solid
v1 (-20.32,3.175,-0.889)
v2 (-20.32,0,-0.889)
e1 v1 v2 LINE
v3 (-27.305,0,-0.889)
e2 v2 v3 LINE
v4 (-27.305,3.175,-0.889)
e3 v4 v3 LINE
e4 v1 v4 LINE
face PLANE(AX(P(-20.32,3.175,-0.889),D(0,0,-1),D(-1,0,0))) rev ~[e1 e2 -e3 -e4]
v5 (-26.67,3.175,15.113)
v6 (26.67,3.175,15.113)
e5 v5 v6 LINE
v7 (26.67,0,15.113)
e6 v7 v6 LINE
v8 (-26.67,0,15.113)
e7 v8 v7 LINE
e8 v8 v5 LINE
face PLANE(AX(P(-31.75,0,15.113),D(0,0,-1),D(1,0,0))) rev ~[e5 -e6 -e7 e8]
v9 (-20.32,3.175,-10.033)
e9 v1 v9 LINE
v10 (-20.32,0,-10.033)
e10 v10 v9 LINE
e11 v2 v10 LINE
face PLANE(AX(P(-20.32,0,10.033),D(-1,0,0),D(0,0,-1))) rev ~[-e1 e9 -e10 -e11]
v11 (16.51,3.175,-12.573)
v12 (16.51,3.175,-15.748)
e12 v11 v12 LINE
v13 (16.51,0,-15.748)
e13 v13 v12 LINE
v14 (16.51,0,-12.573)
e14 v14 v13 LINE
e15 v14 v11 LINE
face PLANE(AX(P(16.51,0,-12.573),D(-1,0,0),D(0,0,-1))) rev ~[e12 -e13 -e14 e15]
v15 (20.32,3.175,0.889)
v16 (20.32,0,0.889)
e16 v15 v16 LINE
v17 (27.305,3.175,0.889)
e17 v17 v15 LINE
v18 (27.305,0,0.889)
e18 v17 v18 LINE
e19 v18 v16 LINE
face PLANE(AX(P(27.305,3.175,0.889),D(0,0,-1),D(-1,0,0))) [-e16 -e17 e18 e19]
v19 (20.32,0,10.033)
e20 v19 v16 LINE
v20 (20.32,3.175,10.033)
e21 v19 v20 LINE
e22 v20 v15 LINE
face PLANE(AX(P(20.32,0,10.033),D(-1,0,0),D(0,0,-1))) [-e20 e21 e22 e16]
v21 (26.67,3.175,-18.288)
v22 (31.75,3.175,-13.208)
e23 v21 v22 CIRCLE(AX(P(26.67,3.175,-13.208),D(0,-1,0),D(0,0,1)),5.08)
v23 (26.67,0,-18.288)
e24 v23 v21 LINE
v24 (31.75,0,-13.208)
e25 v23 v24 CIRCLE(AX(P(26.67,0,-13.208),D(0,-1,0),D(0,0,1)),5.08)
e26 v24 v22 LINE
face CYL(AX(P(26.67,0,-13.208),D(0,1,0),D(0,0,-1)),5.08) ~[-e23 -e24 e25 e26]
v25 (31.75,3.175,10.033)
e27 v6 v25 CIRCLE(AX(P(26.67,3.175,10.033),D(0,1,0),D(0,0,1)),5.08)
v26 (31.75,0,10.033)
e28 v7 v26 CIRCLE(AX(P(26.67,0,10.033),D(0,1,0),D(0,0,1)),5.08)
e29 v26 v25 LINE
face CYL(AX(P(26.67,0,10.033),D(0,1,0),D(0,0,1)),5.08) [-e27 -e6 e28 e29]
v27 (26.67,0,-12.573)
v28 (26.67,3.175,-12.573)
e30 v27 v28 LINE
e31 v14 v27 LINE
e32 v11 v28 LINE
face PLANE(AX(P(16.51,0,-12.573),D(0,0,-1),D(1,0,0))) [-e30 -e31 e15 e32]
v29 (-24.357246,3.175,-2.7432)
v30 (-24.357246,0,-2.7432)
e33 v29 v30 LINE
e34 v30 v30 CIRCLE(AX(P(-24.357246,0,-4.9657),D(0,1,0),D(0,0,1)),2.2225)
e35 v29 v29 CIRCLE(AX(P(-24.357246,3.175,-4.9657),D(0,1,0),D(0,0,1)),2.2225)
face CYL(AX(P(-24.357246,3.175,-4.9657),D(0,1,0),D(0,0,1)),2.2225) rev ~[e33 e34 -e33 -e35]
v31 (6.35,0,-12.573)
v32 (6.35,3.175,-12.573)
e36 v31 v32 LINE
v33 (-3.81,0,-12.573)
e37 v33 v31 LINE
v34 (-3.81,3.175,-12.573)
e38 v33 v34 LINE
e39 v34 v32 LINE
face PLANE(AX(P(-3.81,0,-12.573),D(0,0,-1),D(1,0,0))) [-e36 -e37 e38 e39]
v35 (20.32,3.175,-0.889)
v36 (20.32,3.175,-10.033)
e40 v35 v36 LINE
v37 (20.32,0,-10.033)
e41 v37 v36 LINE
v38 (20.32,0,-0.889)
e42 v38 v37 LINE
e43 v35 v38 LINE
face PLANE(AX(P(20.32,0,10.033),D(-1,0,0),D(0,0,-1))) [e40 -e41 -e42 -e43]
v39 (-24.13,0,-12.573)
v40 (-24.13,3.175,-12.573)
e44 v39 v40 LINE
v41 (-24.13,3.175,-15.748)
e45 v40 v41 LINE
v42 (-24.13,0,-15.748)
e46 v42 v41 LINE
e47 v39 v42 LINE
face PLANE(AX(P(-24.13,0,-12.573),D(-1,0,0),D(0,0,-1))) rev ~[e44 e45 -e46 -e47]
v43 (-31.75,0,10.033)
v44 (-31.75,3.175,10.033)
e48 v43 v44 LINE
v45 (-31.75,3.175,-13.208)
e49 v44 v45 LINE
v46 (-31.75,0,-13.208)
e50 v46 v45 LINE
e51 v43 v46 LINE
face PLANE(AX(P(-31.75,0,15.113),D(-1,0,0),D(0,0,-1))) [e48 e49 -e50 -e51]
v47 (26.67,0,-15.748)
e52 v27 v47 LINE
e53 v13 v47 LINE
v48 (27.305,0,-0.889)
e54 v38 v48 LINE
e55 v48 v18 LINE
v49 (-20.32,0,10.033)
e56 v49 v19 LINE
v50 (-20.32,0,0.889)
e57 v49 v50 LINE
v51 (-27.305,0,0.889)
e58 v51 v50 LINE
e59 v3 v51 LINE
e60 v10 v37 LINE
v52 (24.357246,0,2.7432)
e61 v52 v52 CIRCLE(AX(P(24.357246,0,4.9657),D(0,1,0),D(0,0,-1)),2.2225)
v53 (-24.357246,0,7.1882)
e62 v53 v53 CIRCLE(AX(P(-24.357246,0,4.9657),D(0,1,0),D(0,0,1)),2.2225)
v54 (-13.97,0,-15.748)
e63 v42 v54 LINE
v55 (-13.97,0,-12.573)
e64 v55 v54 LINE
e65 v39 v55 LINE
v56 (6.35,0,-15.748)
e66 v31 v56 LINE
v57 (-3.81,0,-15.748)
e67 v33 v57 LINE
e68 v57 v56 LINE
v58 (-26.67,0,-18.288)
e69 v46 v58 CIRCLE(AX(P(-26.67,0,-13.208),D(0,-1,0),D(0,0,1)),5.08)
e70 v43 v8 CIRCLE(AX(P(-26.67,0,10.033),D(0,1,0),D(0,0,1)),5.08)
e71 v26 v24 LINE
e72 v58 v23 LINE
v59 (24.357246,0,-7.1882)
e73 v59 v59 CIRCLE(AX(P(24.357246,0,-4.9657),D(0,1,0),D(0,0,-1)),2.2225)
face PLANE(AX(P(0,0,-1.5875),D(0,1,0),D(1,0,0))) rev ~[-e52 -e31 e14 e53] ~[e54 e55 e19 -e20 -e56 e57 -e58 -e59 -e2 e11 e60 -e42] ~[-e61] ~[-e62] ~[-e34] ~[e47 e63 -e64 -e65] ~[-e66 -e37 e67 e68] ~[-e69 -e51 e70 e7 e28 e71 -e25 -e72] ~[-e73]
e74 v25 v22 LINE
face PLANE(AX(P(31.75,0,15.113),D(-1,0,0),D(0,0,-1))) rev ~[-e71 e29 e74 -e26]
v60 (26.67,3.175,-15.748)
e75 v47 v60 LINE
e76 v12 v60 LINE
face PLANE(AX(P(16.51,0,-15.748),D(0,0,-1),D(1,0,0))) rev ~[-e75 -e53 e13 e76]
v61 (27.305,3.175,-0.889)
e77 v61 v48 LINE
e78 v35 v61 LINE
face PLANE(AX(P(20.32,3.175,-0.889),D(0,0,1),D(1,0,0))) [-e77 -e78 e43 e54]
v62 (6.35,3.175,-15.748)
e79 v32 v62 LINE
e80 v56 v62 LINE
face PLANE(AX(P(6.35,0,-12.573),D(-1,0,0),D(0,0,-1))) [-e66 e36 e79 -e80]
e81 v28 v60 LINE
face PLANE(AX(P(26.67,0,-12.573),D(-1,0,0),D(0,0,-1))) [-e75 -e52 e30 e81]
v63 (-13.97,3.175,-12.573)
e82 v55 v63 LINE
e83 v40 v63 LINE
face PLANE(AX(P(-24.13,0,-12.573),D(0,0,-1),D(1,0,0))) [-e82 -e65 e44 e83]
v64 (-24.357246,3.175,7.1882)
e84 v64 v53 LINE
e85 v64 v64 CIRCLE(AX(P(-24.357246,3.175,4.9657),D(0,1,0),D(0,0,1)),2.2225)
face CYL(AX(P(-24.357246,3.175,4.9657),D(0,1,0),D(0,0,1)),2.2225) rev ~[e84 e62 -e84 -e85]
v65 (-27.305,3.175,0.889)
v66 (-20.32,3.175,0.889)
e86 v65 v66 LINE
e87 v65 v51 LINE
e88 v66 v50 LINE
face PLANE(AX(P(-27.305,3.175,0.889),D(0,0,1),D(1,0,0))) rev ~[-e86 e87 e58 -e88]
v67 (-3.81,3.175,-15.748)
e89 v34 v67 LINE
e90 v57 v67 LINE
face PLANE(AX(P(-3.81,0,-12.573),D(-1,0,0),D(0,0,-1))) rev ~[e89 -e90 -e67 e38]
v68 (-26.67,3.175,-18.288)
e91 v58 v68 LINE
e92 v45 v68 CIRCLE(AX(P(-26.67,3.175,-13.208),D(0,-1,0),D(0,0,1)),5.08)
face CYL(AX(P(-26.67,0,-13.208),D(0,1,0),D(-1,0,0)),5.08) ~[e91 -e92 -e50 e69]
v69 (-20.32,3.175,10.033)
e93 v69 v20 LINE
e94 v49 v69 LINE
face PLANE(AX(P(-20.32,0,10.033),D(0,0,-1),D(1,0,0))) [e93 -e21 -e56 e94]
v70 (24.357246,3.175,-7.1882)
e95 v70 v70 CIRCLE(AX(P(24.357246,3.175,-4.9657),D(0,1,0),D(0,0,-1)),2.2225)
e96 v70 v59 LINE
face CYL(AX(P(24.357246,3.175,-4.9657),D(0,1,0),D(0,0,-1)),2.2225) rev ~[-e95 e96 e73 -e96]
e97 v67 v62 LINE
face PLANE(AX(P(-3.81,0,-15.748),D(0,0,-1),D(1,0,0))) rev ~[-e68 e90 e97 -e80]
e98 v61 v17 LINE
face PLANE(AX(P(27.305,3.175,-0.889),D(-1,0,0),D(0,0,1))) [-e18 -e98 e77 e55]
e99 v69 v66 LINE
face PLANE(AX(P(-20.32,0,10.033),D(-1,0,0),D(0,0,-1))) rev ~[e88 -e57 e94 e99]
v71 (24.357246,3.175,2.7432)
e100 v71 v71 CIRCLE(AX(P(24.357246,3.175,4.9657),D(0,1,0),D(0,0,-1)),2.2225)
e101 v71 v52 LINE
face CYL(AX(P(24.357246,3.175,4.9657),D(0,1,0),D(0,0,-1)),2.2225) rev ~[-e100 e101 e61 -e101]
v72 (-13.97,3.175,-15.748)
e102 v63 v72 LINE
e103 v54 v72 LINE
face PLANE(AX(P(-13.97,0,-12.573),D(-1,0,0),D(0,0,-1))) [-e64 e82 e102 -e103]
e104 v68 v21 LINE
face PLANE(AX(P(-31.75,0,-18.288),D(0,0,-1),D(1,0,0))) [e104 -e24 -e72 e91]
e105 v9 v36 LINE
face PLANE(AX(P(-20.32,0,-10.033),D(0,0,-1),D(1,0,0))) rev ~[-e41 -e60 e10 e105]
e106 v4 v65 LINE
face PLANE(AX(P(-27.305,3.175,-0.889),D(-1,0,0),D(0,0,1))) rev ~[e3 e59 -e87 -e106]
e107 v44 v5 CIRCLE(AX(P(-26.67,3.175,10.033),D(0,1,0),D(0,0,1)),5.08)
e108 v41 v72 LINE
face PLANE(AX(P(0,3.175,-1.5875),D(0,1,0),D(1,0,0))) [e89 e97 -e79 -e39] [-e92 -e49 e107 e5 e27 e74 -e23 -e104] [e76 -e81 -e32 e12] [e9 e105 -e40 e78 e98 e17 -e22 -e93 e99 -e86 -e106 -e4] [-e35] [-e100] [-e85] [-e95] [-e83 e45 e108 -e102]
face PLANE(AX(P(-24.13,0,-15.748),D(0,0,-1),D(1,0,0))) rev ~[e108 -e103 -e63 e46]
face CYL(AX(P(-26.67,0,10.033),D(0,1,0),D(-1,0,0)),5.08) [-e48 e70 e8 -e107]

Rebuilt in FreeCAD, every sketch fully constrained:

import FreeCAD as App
import Part
import Sketcher
from FreeCAD import Vector
Q = App.Units.Quantity


def edges_at(feature, points):
    """Names of the edges that pass closest to the given points."""
    edges = feature.Shape.Edges
    near = lambda p: min(range(len(edges)), key=lambda i: edges[i].distToShape(Part.Vertex(*p))[0])
    return sorted({f"Edge{near(p) + 1}" for p in points})

doc = App.newDocument("Part")
body = doc.addObject("PartDesign::Body", "Body")

sketch1 = body.newObject("Sketcher::SketchObject", "Sketch")
sketch1.AttachmentSupport = (doc.getObject("XZ_Plane"), [""])
sketch1.MapMode = "FlatFace"
sketch1.addGeometry(Part.LineSegment(Vector(-31.8, -18.3, 0), Vector(-31.8, 15.1, 0)), False)
sketch1.addGeometry(Part.LineSegment(Vector(-31.8, 15.1, 0), Vector(31.8, 15.1, 0)), False)
sketch1.addGeometry(Part.LineSegment(Vector(31.8, 15.1, 0), Vector(31.8, -18.3, 0)), False)
sketch1.addGeometry(Part.LineSegment(Vector(31.8, -18.3, 0), Vector(-31.8, -18.3, 0)), False)
sketch1.addGeometry(Part.LineSegment(Vector(20.3, 10, 0), Vector(-20.3, 10, 0)), False)
sketch1.addGeometry(Part.LineSegment(Vector(-20.3, 10, 0), Vector(-20.3, -10, 0)), False)
sketch1.addGeometry(Part.LineSegment(Vector(-20.3, -10, 0), Vector(20.3, -10, 0)), False)
sketch1.addGeometry(Part.LineSegment(Vector(20.3, -10, 0), Vector(20.3, 10, 0)), False)
sketch1.addGeometry(Part.LineSegment(Vector(-14, -12.6, 0), Vector(-24.1, -12.6, 0)), False)
sketch1.addGeometry(Part.LineSegment(Vector(-24.1, -12.6, 0), Vector(-24.1, -15.7, 0)), False)
sketch1.addGeometry(Part.LineSegment(Vector(-24.1, -15.7, 0), Vector(-14, -15.7, 0)), False)
sketch1.addGeometry(Part.LineSegment(Vector(-14, -15.7, 0), Vector(-14, -12.6, 0)), False)
sketch1.addGeometry(Part.LineSegment(Vector(6.3, -12.6, 0), Vector(-3.8, -12.6, 0)), False)
sketch1.addGeometry(Part.LineSegment(Vector(-3.8, -12.6, 0), Vector(-3.8, -15.7, 0)), False)
sketch1.addGeometry(Part.LineSegment(Vector(-3.8, -15.7, 0), Vector(6.3, -15.7, 0)), False)
sketch1.addGeometry(Part.LineSegment(Vector(6.3, -15.7, 0), Vector(6.3, -12.6, 0)), False)
sketch1.addGeometry(Part.LineSegment(Vector(26.7, -12.6, 0), Vector(16.5, -12.6, 0)), False)
sketch1.addGeometry(Part.LineSegment(Vector(16.5, -12.6, 0), Vector(16.5, -15.7, 0)), False)
sketch1.addGeometry(Part.LineSegment(Vector(16.5, -15.7, 0), Vector(26.7, -15.7, 0)), False)
sketch1.addGeometry(Part.LineSegment(Vector(26.7, -15.7, 0), Vector(26.7, -12.6, 0)), False)
sketch1.addConstraint(Sketcher.Constraint("Coincident", 0, 2, 1, 1))
sketch1.addConstraint(Sketcher.Constraint("Coincident", 1, 2, 2, 1))
sketch1.addConstraint(Sketcher.Constraint("Coincident", 2, 2, 3, 1))
sketch1.addConstraint(Sketcher.Constraint("Coincident", 3, 2, 0, 1))
sketch1.addConstraint(Sketcher.Constraint("Coincident", 4, 2, 5, 1))
sketch1.addConstraint(Sketcher.Constraint("Coincident", 5, 2, 6, 1))
sketch1.addConstraint(Sketcher.Constraint("Coincident", 6, 2, 7, 1))
sketch1.addConstraint(Sketcher.Constraint("Coincident", 7, 2, 4, 1))
sketch1.addConstraint(Sketcher.Constraint("Coincident", 8, 2, 9, 1))
sketch1.addConstraint(Sketcher.Constraint("Coincident", 9, 2, 10, 1))
sketch1.addConstraint(Sketcher.Constraint("Coincident", 10, 2, 11, 1))
sketch1.addConstraint(Sketcher.Constraint("Coincident", 11, 2, 8, 1))
sketch1.addConstraint(Sketcher.Constraint("Coincident", 12, 2, 13, 1))
sketch1.addConstraint(Sketcher.Constraint("Coincident", 13, 2, 14, 1))
sketch1.addConstraint(Sketcher.Constraint("Coincident", 14, 2, 15, 1))
sketch1.addConstraint(Sketcher.Constraint("Coincident", 15, 2, 12, 1))
sketch1.addConstraint(Sketcher.Constraint("Coincident", 16, 2, 17, 1))
sketch1.addConstraint(Sketcher.Constraint("Coincident", 17, 2, 18, 1))
sketch1.addConstraint(Sketcher.Constraint("Coincident", 18, 2, 19, 1))
sketch1.addConstraint(Sketcher.Constraint("Coincident", 19, 2, 16, 1))
sketch1.addConstraint(Sketcher.Constraint("Vertical", 0))
sketch1.addConstraint(Sketcher.Constraint("Horizontal", 1))
sketch1.addConstraint(Sketcher.Constraint("Vertical", 2))
sketch1.addConstraint(Sketcher.Constraint("Horizontal", 3))
sketch1.addConstraint(Sketcher.Constraint("Horizontal", 4))
sketch1.addConstraint(Sketcher.Constraint("Vertical", 5))
sketch1.addConstraint(Sketcher.Constraint("Horizontal", 6))
sketch1.addConstraint(Sketcher.Constraint("Vertical", 7))
sketch1.addConstraint(Sketcher.Constraint("Horizontal", 8))
sketch1.addConstraint(Sketcher.Constraint("Vertical", 9))
sketch1.addConstraint(Sketcher.Constraint("Horizontal", 10))
sketch1.addConstraint(Sketcher.Constraint("Vertical", 11))
sketch1.addConstraint(Sketcher.Constraint("Horizontal", 12))
sketch1.addConstraint(Sketcher.Constraint("Vertical", 13))
sketch1.addConstraint(Sketcher.Constraint("Horizontal", 14))
sketch1.addConstraint(Sketcher.Constraint("Vertical", 15))
sketch1.addConstraint(Sketcher.Constraint("Horizontal", 16))
sketch1.addConstraint(Sketcher.Constraint("Vertical", 17))
sketch1.addConstraint(Sketcher.Constraint("Horizontal", 18))
sketch1.addConstraint(Sketcher.Constraint("Vertical", 19))
sketch1.addConstraint(Sketcher.Constraint("Symmetric", 4, 2, 6, 2, -1, 1))
sketch1.addConstraint(Sketcher.Constraint("Horizontal", 11, 2, 12, 2))
sketch1.addConstraint(Sketcher.Constraint("Horizontal", 10, 2, 13, 2))
sketch1.addConstraint(Sketcher.Constraint("Horizontal", 15, 2, 16, 2))
sketch1.addConstraint(Sketcher.Constraint("Horizontal", 14, 2, 17, 2))
sketch1.addConstraint(Sketcher.Constraint("Equal", 10, 12))
sketch1.addConstraint(Sketcher.Constraint("Equal", 14, 16))
sketch1.addConstraint(Sketcher.Constraint("DistanceX", 1, 1, 1, 2, Q("2.5 in")))
sketch1.addConstraint(Sketcher.Constraint("DistanceX", 4, 2, 4, 1, Q("1.6 in")))
sketch1.addConstraint(Sketcher.Constraint("DistanceX", 8, 2, 8, 1, Q("0.4 in")))
sketch1.addConstraint(Sketcher.Constraint("DistanceY", 5, 2, 5, 1, Q("0.79 in")))
sketch1.addConstraint(Sketcher.Constraint("DistanceY", 4, 2, 0, 2, Q("0.2 in")))
sketch1.addConstraint(Sketcher.Constraint("DistanceY", 8, 2, 5, 2, Q("0.1 in")))
sketch1.addConstraint(Sketcher.Constraint("DistanceX", 3, 2, 8, 2, Q("0.3 in")))
sketch1.addConstraint(Sketcher.Constraint("DistanceY", 3, 2, 9, 2, Q("0.1 in")))
sketch1.addConstraint(Sketcher.Constraint("DistanceX", 11, 2, 12, 2, Q("0.4 in")))
sketch1.addConstraint(Sketcher.Constraint("DistanceX", 15, 2, 16, 2, Q("0.4 in")))
sketch1.addConstraint(Sketcher.Constraint("DistanceY", 0, 1, 0, 2, Q("1.315 in")))
sketch1.addConstraint(Sketcher.Constraint("DistanceX", 0, 2, -1, 1, Q("1.25 in")))
pad1 = body.newObject("PartDesign::Pad", "Pad")
pad1.Profile = sketch1
pad1.Length = Q("0.125 in")
pad1.Reversed = True

sketch2 = body.newObject("Sketcher::SketchObject", "Sketch001")
sketch2.AttachmentSupport = (doc.getObject("XZ_Plane"), [""])
sketch2.MapMode = "FlatFace"
sketch2.AttachmentOffset = App.Placement(Vector(0, 0, -0.125 * 25.4), App.Rotation())
sketch2.addGeometry(Part.Circle(Vector(-24.4, -5, 0), Vector(0, 0, 1), 2.2), False)
sketch2.addGeometry(Part.Circle(Vector(-24.4, 5, 0), Vector(0, 0, 1), 2.2), False)
sketch2.addGeometry(Part.Circle(Vector(24.4, 5, 0), Vector(0, 0, 1), 2.2), False)
sketch2.addGeometry(Part.Circle(Vector(24.4, -5, 0), Vector(0, 0, 1), 2.2), False)
sketch2.addConstraint(Sketcher.Constraint("Equal", 0, 1))
sketch2.addConstraint(Sketcher.Constraint("Equal", 1, 2))
sketch2.addConstraint(Sketcher.Constraint("Equal", 2, 3))
sketch2.addConstraint(Sketcher.Constraint("Symmetric", 0, 3, 2, 3, -1, 1))
sketch2.addConstraint(Sketcher.Constraint("Symmetric", 1, 3, 3, 3, -1, 1))
sketch2.addConstraint(Sketcher.Constraint("Symmetric", 1, 3, 2, 3, -2))
sketch2.addConstraint(Sketcher.Constraint("Diameter", 0, Q("0.175 in")))
sketch2.addConstraint(Sketcher.Constraint("DistanceY", 0, 3, 1, 3, Q("0.391 in")))
sketch2.addConstraint(Sketcher.Constraint("DistanceX", 0, 3, -1, 1, Q("24.357246 mm")))
pocket1 = body.newObject("PartDesign::Pocket", "Pocket")
pocket1.Profile = sketch2
pocket1.Type = "ThroughAll"
pocket1.Reversed = True

sketch3 = body.newObject("Sketcher::SketchObject", "Sketch002")
sketch3.AttachmentSupport = (doc.getObject("XZ_Plane"), [""])
sketch3.MapMode = "FlatFace"
sketch3.AttachmentOffset = App.Placement(Vector(0, 0, -0.125 * 25.4), App.Rotation())
sketch3.addGeometry(Part.LineSegment(Vector(-20.3, -0.9, 0), Vector(-27.3, -0.9, 0)), False)
sketch3.addGeometry(Part.LineSegment(Vector(-27.3, -0.9, 0), Vector(-27.3, 0.9, 0)), False)
sketch3.addGeometry(Part.LineSegment(Vector(-27.3, 0.9, 0), Vector(-20.3, 0.9, 0)), False)
sketch3.addGeometry(Part.LineSegment(Vector(-20.3, 0.9, 0), Vector(-20.3, -0.9, 0)), False)
sketch3.addGeometry(Part.LineSegment(Vector(20.3, 0.9, 0), Vector(27.3, 0.9, 0)), False)
sketch3.addGeometry(Part.LineSegment(Vector(27.3, 0.9, 0), Vector(27.3, -0.9, 0)), False)
sketch3.addGeometry(Part.LineSegment(Vector(27.3, -0.9, 0), Vector(20.3, -0.9, 0)), False)
sketch3.addGeometry(Part.LineSegment(Vector(20.3, -0.9, 0), Vector(20.3, 0.9, 0)), False)
sketch3.addConstraint(Sketcher.Constraint("Coincident", 0, 2, 1, 1))
sketch3.addConstraint(Sketcher.Constraint("Coincident", 1, 2, 2, 1))
sketch3.addConstraint(Sketcher.Constraint("Coincident", 2, 2, 3, 1))
sketch3.addConstraint(Sketcher.Constraint("Coincident", 3, 2, 0, 1))
sketch3.addConstraint(Sketcher.Constraint("Coincident", 4, 2, 5, 1))
sketch3.addConstraint(Sketcher.Constraint("Coincident", 5, 2, 6, 1))
sketch3.addConstraint(Sketcher.Constraint("Coincident", 6, 2, 7, 1))
sketch3.addConstraint(Sketcher.Constraint("Coincident", 7, 2, 4, 1))
sketch3.addConstraint(Sketcher.Constraint("Horizontal", 0))
sketch3.addConstraint(Sketcher.Constraint("Vertical", 1))
sketch3.addConstraint(Sketcher.Constraint("Horizontal", 2))
sketch3.addConstraint(Sketcher.Constraint("Vertical", 3))
sketch3.addConstraint(Sketcher.Constraint("Horizontal", 4))
sketch3.addConstraint(Sketcher.Constraint("Vertical", 5))
sketch3.addConstraint(Sketcher.Constraint("Horizontal", 6))
sketch3.addConstraint(Sketcher.Constraint("Vertical", 7))
sketch3.addConstraint(Sketcher.Constraint("Symmetric", 0, 2, 4, 2, -1, 1))
sketch3.addConstraint(Sketcher.Constraint("Symmetric", 2, 2, 6, 2, -1, 1))
sketch3.addConstraint(Sketcher.Constraint("Horizontal", 2, 2, 4, 2))
sketch3.addConstraint(Sketcher.Constraint("DistanceY", 1, 1, 1, 2, Q("0.07 in")))
sketch3.addConstraint(Sketcher.Constraint("DistanceX", 2, 2, -1, 1, Q("0.8 in")))
sketch3.addConstraint(Sketcher.Constraint("DistanceX", 0, 2, 0, 1, Q("0.275 in")))
pocket2 = body.newObject("PartDesign::Pocket", "Pocket001")
pocket2.Profile = sketch3
pocket2.Type = "ThroughAll"
pocket2.Reversed = True
doc.recompute()

fillet = body.newObject("PartDesign::Fillet", "Fillet")
fillet.Base = (pocket2, edges_at(pocket2, [
    (31.75, 1.587, 15.113),
    (-31.75, 1.587, 15.113),
    (-31.75, 1.587, -18.288),
    (31.75, 1.587, -18.288),
]))
fillet.Radius = Q("0.2 in")

doc.recompute()
